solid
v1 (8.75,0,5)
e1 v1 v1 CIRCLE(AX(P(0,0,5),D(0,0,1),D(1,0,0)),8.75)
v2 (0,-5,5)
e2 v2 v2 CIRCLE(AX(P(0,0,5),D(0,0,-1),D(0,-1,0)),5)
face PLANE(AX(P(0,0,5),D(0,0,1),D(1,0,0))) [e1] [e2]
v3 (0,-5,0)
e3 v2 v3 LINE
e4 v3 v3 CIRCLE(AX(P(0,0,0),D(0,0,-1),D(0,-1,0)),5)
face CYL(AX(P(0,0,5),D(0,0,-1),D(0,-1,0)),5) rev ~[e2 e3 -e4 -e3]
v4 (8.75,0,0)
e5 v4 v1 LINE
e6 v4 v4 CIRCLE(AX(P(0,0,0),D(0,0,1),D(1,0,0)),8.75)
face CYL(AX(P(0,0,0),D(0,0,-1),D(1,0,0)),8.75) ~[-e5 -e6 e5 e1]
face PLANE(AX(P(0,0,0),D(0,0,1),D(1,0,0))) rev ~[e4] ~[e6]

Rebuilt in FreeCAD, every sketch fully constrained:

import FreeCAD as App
import Part
import Sketcher
from FreeCAD import Vector
Q = App.Units.Quantity

doc = App.newDocument("Part")
body = doc.addObject("PartDesign::Body", "Body")

# Sketch on XY plane
sketch1 = doc.addObject("Sketcher::SketchObject", "Sketch")
body.addObject(sketch1)
sketch1.AttachmentSupport = (doc.XY_Plane, [""])
sketch1.MapMode = "FlatFace"
sketch1.addGeometry(Part.Circle(Vector(0, 0, 0), Vector(0, 0, 1), 9), False)
sketch1.addConstraint(Sketcher.Constraint("Coincident", 0, 3, -1, 1))
sketch1.addConstraint(Sketcher.Constraint("Diameter", 0, Q("17.5 mm")))
pad1 = doc.addObject("PartDesign::Pad", "Pad")
body.addObject(pad1)
pad1.Profile = sketch1
pad1.Length = 5

# Sketch on XY plane
sketch2 = doc.addObject("Sketcher::SketchObject", "Sketch001")
body.addObject(sketch2)
sketch2.AttachmentSupport = (doc.XY_Plane, [""])
sketch2.MapMode = "FlatFace"
sketch2.AttachmentOffset = App.Placement(Vector(0, 0, 5), App.Rotation())
sketch2.addGeometry(Part.Circle(Vector(0, 0, 0), Vector(0, 0, 1), 5), False)
sketch2.addConstraint(Sketcher.Constraint("Coincident", 0, 3, -1, 1))
sketch2.addConstraint(Sketcher.Constraint("Diameter", 0, Q("10 mm")))
doc.recompute()
hole = doc.addObject("PartDesign::Hole", "Hole")
body.addObject(hole)
hole.Profile = sketch2
hole.ThreadType = "None"
hole.Diameter = 10
hole.DepthType = "Dimension"
hole.Depth = 9
hole.DrillPoint = "Flat"

doc.recompute()
